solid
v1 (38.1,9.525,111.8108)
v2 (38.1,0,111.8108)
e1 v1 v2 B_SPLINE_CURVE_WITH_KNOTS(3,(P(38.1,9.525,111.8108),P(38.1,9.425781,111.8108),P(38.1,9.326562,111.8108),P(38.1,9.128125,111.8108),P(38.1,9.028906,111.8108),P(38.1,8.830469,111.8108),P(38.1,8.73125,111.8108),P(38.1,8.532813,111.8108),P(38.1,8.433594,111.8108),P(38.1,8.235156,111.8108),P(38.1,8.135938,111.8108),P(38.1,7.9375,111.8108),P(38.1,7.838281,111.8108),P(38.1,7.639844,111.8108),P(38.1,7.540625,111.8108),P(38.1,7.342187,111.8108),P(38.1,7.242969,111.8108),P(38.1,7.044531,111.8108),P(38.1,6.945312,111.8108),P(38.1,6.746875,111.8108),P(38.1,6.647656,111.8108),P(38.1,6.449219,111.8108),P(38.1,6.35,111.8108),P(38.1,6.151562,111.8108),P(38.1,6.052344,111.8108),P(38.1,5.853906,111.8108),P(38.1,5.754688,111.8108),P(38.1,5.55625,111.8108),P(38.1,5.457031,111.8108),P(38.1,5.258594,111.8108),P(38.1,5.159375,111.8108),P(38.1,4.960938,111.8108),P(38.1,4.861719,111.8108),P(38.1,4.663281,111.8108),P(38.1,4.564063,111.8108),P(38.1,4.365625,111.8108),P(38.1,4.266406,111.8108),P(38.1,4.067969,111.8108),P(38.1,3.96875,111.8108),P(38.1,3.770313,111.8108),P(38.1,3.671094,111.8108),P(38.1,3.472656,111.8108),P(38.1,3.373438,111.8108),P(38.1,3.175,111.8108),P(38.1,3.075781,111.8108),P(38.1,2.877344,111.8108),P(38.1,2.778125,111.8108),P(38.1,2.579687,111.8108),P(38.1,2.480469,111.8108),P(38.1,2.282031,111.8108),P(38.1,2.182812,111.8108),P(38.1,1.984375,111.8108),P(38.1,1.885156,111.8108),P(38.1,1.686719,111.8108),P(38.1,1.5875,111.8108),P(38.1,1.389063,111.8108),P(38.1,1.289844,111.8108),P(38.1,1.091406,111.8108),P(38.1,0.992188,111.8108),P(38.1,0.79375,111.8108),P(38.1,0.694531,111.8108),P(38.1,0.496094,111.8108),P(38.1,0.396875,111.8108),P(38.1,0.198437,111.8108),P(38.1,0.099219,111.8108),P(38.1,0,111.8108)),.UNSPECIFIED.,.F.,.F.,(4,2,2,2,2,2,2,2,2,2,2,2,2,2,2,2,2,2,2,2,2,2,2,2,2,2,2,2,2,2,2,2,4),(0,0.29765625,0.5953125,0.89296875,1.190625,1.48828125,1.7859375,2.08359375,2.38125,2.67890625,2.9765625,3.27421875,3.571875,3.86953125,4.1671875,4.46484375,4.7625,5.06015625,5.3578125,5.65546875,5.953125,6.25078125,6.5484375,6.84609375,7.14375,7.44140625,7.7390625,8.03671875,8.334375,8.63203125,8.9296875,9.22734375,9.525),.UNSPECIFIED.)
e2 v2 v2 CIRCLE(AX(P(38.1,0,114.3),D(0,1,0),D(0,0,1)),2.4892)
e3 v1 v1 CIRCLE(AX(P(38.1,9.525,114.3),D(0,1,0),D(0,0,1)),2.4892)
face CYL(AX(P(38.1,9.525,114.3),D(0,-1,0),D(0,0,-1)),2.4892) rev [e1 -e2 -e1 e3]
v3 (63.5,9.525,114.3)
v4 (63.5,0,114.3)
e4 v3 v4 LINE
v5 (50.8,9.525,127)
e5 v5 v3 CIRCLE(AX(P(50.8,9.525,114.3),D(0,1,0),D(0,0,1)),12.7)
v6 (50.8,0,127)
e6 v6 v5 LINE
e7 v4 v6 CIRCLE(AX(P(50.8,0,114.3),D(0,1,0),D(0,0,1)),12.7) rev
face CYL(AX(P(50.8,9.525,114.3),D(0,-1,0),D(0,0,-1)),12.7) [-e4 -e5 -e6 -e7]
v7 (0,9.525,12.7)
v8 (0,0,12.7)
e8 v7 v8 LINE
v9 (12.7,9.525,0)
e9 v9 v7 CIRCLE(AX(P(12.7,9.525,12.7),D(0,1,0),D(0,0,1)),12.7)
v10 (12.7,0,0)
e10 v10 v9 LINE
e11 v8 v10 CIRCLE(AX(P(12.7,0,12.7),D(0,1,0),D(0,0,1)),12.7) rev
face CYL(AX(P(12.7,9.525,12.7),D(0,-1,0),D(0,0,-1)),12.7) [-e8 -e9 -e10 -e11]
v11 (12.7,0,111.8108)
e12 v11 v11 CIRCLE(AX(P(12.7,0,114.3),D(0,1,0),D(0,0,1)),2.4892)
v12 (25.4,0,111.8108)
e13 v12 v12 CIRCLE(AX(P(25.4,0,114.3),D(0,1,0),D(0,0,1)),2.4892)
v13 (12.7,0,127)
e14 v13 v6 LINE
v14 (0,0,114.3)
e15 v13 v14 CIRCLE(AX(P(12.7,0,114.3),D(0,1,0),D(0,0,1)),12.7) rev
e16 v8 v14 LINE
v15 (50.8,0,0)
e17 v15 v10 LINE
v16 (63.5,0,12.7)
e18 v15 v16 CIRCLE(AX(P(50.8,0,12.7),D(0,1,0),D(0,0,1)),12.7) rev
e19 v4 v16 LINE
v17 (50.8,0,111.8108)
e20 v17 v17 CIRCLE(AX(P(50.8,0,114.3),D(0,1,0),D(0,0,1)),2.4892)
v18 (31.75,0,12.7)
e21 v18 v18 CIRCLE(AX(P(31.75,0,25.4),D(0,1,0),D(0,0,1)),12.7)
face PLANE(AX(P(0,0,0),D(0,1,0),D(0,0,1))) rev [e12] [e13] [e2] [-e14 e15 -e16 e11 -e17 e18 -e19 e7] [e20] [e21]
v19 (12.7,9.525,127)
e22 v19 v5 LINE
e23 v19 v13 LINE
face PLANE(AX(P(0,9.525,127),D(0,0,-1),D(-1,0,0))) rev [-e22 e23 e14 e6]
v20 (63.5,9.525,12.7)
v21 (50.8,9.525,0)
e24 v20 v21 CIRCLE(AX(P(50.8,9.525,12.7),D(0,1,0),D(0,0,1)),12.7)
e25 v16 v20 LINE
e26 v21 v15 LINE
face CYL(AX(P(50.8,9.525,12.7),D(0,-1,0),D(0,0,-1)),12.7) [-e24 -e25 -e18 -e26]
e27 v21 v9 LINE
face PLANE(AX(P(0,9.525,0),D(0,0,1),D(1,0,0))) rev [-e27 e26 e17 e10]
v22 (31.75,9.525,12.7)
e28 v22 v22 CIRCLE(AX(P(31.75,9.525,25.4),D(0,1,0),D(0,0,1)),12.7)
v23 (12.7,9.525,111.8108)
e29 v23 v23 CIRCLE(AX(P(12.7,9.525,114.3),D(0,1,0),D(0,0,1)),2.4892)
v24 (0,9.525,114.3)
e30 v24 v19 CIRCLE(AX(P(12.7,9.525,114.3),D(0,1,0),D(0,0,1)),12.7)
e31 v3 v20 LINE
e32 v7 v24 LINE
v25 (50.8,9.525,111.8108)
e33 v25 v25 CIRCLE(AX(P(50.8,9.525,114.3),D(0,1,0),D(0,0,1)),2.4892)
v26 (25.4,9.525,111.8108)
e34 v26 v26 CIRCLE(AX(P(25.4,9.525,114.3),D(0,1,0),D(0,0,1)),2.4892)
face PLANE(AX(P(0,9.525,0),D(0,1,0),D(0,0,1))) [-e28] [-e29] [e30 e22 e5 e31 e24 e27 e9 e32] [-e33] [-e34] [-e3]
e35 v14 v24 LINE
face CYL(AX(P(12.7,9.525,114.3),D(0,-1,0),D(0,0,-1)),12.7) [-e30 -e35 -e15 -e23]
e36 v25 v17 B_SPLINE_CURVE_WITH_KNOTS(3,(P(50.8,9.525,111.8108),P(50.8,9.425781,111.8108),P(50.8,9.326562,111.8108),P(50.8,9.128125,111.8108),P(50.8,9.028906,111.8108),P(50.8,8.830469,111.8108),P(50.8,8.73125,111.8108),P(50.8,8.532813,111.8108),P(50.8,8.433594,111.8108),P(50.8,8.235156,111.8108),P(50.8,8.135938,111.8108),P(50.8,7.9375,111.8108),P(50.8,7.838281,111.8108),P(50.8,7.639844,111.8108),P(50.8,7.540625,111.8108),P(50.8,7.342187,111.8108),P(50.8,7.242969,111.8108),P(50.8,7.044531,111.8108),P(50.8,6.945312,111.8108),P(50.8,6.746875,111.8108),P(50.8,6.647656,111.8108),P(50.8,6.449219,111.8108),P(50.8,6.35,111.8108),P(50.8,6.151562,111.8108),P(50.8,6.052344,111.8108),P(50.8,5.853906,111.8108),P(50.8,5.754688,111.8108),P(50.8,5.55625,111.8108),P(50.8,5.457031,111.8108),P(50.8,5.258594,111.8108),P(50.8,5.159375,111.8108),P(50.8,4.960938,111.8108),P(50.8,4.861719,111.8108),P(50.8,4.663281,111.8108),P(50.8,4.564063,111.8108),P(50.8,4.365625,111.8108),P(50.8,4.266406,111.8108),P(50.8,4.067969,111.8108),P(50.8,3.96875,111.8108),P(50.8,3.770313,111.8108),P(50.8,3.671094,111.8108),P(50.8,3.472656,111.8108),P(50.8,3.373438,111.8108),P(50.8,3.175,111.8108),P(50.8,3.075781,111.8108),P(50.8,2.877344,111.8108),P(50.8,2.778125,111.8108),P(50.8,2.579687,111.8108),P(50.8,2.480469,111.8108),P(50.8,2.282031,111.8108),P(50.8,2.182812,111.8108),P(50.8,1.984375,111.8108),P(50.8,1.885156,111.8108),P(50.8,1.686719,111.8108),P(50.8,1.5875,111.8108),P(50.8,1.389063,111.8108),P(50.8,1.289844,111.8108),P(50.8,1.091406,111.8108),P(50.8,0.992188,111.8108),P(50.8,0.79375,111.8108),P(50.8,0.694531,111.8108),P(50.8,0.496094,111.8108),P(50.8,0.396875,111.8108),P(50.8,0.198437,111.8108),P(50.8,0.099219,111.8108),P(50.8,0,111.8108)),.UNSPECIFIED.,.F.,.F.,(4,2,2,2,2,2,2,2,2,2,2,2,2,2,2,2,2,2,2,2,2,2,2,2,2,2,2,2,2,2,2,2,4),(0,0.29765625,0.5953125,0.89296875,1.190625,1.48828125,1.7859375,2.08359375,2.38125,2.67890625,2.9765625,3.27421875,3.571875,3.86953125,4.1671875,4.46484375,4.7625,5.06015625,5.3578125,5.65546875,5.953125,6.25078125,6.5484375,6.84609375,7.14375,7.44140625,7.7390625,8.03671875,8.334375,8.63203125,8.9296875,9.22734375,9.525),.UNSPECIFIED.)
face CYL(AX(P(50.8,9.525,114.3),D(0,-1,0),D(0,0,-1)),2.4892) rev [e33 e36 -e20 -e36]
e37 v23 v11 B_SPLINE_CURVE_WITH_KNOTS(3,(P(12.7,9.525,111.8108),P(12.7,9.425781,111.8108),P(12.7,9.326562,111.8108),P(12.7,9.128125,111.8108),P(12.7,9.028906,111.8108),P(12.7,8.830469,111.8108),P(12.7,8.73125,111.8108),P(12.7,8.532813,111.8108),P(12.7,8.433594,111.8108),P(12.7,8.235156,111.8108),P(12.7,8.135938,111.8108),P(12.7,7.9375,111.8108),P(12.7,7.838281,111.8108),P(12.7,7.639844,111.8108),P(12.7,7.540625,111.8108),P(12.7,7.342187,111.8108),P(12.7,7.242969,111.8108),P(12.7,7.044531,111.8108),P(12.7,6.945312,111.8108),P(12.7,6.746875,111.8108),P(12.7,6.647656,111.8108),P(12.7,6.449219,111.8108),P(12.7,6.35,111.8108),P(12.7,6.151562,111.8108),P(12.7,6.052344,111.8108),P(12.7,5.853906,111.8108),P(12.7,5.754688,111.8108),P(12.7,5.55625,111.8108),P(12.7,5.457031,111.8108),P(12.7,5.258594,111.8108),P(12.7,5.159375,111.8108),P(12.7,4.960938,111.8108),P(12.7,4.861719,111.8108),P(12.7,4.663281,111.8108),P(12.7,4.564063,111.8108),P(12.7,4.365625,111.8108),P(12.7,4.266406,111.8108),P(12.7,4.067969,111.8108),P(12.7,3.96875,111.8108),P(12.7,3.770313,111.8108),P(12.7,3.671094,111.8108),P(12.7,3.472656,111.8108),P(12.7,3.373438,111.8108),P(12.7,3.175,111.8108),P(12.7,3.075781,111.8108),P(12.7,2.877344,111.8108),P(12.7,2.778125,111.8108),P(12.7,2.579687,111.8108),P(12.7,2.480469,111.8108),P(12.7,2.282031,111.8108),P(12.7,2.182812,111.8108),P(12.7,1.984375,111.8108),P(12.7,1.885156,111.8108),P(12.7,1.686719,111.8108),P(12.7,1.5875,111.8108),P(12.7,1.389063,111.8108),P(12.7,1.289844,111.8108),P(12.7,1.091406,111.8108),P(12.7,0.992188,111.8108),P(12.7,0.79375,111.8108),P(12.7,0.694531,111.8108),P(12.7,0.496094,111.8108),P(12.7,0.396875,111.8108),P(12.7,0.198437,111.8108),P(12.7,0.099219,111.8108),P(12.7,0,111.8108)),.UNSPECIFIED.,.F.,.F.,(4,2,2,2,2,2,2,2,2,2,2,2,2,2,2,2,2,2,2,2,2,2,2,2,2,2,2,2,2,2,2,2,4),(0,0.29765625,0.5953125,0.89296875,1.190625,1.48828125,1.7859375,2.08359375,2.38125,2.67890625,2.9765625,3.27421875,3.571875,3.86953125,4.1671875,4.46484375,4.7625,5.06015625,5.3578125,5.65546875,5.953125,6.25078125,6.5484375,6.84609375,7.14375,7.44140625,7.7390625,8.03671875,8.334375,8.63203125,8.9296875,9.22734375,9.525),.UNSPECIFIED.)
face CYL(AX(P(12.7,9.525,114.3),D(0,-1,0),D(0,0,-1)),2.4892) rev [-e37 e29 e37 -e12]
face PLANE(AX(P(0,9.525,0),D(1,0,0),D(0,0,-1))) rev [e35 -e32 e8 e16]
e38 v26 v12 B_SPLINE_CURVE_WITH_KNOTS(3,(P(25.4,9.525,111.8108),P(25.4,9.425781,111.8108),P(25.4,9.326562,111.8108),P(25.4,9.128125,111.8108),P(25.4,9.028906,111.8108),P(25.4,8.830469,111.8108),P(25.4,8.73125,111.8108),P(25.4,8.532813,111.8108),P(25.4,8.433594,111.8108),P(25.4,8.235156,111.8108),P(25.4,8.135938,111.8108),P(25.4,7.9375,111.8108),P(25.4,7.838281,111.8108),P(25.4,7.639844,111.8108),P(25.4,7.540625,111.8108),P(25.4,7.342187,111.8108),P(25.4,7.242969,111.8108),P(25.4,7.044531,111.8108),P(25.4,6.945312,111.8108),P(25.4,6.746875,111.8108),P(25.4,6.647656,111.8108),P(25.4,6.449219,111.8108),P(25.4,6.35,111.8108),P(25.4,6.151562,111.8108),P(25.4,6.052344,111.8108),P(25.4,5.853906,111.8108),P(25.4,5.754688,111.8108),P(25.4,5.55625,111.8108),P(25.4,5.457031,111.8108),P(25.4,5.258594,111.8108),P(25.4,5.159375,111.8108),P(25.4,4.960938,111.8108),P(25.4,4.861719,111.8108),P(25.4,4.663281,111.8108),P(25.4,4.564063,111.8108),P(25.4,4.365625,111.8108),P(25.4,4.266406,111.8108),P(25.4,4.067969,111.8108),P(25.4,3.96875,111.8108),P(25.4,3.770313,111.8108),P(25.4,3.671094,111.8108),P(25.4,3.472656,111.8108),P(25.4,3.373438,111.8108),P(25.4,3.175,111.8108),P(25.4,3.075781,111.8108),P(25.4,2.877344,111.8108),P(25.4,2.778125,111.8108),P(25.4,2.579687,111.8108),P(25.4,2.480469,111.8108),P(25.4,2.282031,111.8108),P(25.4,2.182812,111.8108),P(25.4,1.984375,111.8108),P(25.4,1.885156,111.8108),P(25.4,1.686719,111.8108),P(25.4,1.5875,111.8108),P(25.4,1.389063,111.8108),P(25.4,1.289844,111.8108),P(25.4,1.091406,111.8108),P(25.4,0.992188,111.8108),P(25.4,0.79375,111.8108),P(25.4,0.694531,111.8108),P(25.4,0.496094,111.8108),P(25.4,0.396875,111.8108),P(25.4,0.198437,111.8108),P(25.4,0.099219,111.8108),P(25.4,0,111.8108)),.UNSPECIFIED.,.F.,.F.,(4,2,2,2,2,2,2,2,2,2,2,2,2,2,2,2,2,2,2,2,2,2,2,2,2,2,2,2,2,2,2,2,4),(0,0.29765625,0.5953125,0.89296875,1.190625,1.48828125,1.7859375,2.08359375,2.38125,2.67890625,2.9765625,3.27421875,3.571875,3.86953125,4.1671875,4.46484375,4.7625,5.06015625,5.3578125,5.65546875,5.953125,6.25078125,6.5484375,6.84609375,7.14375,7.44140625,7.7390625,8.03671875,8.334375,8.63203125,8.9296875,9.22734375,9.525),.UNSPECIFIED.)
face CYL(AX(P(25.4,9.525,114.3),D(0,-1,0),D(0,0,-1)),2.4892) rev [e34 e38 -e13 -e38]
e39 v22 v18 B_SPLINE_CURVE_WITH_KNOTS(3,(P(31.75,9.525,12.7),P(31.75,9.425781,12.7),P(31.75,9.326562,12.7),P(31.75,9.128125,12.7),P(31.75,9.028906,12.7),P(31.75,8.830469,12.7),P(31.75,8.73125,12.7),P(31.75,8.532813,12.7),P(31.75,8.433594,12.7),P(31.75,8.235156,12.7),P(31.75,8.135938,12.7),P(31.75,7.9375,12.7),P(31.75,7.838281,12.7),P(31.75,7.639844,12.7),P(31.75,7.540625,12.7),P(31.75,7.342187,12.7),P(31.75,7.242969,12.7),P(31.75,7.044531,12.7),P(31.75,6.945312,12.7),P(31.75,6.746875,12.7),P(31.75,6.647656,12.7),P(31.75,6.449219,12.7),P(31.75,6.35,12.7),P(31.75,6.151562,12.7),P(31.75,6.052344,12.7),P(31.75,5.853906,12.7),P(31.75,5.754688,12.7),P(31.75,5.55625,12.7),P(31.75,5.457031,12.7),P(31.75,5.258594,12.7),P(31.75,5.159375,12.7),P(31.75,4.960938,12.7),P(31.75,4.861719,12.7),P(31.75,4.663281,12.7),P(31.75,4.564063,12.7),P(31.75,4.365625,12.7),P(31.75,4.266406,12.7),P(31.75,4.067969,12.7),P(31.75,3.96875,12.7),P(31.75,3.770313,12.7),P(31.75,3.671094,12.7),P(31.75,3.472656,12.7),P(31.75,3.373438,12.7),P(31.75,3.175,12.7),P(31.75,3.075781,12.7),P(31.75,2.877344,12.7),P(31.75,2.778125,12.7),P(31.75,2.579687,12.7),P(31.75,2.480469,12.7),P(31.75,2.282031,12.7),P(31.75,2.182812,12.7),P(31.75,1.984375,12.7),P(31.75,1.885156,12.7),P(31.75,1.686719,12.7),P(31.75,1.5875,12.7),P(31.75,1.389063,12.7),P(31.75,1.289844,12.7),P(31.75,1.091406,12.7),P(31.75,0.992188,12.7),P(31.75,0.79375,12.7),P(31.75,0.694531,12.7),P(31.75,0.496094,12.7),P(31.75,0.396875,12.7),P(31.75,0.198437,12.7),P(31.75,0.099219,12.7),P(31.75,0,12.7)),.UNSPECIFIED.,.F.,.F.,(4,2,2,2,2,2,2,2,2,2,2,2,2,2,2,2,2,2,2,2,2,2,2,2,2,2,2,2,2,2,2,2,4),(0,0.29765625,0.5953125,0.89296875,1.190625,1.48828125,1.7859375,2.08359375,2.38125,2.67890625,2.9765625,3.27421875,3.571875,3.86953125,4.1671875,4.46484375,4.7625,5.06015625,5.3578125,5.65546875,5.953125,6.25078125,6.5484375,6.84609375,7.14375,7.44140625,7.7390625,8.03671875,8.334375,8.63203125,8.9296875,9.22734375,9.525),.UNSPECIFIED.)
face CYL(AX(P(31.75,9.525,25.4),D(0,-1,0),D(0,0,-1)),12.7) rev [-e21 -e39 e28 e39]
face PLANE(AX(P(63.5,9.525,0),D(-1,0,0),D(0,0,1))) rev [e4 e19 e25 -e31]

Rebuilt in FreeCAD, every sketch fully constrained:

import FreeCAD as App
import Part
import Sketcher
from FreeCAD import Vector
Q = App.Units.Quantity


def edges_at(feature, points):
    """Names of the edges that pass closest to the given points."""
    edges = feature.Shape.Edges
    near = lambda p: min(range(len(edges)), key=lambda i: edges[i].distToShape(Part.Vertex(*p))[0])
    return sorted({f"Edge{near(p) + 1}" for p in points})

doc = App.newDocument("Part")
body = doc.addObject("PartDesign::Body", "Body")

sketch1 = body.newObject("Sketcher::SketchObject", "Sketch")
sketch1.AttachmentSupport = (doc.getObject("XZ_Plane"), [""])
sketch1.MapMode = "FlatFace"
sketch1.addGeometry(Part.LineSegment(Vector(0, 0, 0), Vector(0, 127, 0)), False)
sketch1.addGeometry(Part.LineSegment(Vector(0, 127, 0), Vector(63.5, 127, 0)), False)
sketch1.addGeometry(Part.LineSegment(Vector(63.5, 127, 0), Vector(63.5, 0, 0)), False)
sketch1.addGeometry(Part.LineSegment(Vector(63.5, 0, 0), Vector(0, 0, 0)), False)
sketch1.addGeometry(Part.Circle(Vector(12.7, 114.3, 0), Vector(0, 0, 1), 2.5), False)
sketch1.addGeometry(Part.Circle(Vector(25.4, 114.3, 0), Vector(0, 0, 1), 2.5), False)
sketch1.addGeometry(Part.Circle(Vector(38.1, 114.3, 0), Vector(0, 0, 1), 2.5), False)
sketch1.addGeometry(Part.Circle(Vector(50.8, 114.3, 0), Vector(0, 0, 1), 2.5), False)
sketch1.addGeometry(Part.Circle(Vector(31.8, 25.4, 0), Vector(0, 0, 1), 12.7), False)
sketch1.addConstraint(Sketcher.Constraint("Coincident", 0, 2, 1, 1))
sketch1.addConstraint(Sketcher.Constraint("Coincident", 1, 2, 2, 1))
sketch1.addConstraint(Sketcher.Constraint("Coincident", 2, 2, 3, 1))
sketch1.addConstraint(Sketcher.Constraint("Coincident", 3, 2, 0, 1))
sketch1.addConstraint(Sketcher.Constraint("Vertical", 0))
sketch1.addConstraint(Sketcher.Constraint("Horizontal", 1))
sketch1.addConstraint(Sketcher.Constraint("Vertical", 2))
sketch1.addConstraint(Sketcher.Constraint("Horizontal", 3))
sketch1.addConstraint(Sketcher.Constraint("Coincident", 3, 2, -1, 1))
sketch1.addConstraint(Sketcher.Constraint("Equal", 4, 5))
sketch1.addConstraint(Sketcher.Constraint("Equal", 5, 6))
sketch1.addConstraint(Sketcher.Constraint("Equal", 6, 7))
sketch1.addConstraint(Sketcher.Constraint("Horizontal", 4, 3, 5, 3))
sketch1.addConstraint(Sketcher.Constraint("Horizontal", 5, 3, 6, 3))
sketch1.addConstraint(Sketcher.Constraint("Horizontal", 6, 3, 7, 3))
sketch1.addConstraint(Sketcher.Constraint("Diameter", 8, Q("1 in")))
sketch1.addConstraint(Sketcher.Constraint("DistanceY", 0, 1, 0, 2, Q("5 in")))
sketch1.addConstraint(Sketcher.Constraint("Diameter", 4, Q("0.196 in")))
sketch1.addConstraint(Sketcher.Constraint("DistanceX", 1, 1, 1, 2, Q("2.5 in")))
sketch1.addConstraint(Sketcher.Constraint("DistanceX", -1, 1, 5, 3, Q("1 in")))
sketch1.addConstraint(Sketcher.Constraint("DistanceX", -1, 1, 7, 3, Q("2 in")))
sketch1.addConstraint(Sketcher.Constraint("DistanceY", -1, 1, 8, 3, Q("1 in")))
sketch1.addConstraint(Sketcher.Constraint("DistanceX", 4, 3, 6, 3, Q("1 in")))
sketch1.addConstraint(Sketcher.Constraint("DistanceX", 6, 3, 1, 2, Q("1 in")))
sketch1.addConstraint(Sketcher.Constraint("DistanceY", -1, 1, 4, 3, Q("4.5 in")))
sketch1.addConstraint(Sketcher.Constraint("DistanceX", -1, 1, 8, 3, Q("1.25 in")))
pad1 = body.newObject("PartDesign::Pad", "Pad")
pad1.Profile = sketch1
pad1.Length = Q("0.375 in")
pad1.Reversed = True
doc.recompute()

fillet = body.newObject("PartDesign::Fillet", "Fillet")
fillet.Base = (pad1, edges_at(pad1, [
    (0, 4.763, 0),
    (63.5, 4.763, 0),
    (63.5, 4.763, 127),
    (0, 4.763, 127),
]))
fillet.Radius = Q("0.5 in")

doc.recompute()
